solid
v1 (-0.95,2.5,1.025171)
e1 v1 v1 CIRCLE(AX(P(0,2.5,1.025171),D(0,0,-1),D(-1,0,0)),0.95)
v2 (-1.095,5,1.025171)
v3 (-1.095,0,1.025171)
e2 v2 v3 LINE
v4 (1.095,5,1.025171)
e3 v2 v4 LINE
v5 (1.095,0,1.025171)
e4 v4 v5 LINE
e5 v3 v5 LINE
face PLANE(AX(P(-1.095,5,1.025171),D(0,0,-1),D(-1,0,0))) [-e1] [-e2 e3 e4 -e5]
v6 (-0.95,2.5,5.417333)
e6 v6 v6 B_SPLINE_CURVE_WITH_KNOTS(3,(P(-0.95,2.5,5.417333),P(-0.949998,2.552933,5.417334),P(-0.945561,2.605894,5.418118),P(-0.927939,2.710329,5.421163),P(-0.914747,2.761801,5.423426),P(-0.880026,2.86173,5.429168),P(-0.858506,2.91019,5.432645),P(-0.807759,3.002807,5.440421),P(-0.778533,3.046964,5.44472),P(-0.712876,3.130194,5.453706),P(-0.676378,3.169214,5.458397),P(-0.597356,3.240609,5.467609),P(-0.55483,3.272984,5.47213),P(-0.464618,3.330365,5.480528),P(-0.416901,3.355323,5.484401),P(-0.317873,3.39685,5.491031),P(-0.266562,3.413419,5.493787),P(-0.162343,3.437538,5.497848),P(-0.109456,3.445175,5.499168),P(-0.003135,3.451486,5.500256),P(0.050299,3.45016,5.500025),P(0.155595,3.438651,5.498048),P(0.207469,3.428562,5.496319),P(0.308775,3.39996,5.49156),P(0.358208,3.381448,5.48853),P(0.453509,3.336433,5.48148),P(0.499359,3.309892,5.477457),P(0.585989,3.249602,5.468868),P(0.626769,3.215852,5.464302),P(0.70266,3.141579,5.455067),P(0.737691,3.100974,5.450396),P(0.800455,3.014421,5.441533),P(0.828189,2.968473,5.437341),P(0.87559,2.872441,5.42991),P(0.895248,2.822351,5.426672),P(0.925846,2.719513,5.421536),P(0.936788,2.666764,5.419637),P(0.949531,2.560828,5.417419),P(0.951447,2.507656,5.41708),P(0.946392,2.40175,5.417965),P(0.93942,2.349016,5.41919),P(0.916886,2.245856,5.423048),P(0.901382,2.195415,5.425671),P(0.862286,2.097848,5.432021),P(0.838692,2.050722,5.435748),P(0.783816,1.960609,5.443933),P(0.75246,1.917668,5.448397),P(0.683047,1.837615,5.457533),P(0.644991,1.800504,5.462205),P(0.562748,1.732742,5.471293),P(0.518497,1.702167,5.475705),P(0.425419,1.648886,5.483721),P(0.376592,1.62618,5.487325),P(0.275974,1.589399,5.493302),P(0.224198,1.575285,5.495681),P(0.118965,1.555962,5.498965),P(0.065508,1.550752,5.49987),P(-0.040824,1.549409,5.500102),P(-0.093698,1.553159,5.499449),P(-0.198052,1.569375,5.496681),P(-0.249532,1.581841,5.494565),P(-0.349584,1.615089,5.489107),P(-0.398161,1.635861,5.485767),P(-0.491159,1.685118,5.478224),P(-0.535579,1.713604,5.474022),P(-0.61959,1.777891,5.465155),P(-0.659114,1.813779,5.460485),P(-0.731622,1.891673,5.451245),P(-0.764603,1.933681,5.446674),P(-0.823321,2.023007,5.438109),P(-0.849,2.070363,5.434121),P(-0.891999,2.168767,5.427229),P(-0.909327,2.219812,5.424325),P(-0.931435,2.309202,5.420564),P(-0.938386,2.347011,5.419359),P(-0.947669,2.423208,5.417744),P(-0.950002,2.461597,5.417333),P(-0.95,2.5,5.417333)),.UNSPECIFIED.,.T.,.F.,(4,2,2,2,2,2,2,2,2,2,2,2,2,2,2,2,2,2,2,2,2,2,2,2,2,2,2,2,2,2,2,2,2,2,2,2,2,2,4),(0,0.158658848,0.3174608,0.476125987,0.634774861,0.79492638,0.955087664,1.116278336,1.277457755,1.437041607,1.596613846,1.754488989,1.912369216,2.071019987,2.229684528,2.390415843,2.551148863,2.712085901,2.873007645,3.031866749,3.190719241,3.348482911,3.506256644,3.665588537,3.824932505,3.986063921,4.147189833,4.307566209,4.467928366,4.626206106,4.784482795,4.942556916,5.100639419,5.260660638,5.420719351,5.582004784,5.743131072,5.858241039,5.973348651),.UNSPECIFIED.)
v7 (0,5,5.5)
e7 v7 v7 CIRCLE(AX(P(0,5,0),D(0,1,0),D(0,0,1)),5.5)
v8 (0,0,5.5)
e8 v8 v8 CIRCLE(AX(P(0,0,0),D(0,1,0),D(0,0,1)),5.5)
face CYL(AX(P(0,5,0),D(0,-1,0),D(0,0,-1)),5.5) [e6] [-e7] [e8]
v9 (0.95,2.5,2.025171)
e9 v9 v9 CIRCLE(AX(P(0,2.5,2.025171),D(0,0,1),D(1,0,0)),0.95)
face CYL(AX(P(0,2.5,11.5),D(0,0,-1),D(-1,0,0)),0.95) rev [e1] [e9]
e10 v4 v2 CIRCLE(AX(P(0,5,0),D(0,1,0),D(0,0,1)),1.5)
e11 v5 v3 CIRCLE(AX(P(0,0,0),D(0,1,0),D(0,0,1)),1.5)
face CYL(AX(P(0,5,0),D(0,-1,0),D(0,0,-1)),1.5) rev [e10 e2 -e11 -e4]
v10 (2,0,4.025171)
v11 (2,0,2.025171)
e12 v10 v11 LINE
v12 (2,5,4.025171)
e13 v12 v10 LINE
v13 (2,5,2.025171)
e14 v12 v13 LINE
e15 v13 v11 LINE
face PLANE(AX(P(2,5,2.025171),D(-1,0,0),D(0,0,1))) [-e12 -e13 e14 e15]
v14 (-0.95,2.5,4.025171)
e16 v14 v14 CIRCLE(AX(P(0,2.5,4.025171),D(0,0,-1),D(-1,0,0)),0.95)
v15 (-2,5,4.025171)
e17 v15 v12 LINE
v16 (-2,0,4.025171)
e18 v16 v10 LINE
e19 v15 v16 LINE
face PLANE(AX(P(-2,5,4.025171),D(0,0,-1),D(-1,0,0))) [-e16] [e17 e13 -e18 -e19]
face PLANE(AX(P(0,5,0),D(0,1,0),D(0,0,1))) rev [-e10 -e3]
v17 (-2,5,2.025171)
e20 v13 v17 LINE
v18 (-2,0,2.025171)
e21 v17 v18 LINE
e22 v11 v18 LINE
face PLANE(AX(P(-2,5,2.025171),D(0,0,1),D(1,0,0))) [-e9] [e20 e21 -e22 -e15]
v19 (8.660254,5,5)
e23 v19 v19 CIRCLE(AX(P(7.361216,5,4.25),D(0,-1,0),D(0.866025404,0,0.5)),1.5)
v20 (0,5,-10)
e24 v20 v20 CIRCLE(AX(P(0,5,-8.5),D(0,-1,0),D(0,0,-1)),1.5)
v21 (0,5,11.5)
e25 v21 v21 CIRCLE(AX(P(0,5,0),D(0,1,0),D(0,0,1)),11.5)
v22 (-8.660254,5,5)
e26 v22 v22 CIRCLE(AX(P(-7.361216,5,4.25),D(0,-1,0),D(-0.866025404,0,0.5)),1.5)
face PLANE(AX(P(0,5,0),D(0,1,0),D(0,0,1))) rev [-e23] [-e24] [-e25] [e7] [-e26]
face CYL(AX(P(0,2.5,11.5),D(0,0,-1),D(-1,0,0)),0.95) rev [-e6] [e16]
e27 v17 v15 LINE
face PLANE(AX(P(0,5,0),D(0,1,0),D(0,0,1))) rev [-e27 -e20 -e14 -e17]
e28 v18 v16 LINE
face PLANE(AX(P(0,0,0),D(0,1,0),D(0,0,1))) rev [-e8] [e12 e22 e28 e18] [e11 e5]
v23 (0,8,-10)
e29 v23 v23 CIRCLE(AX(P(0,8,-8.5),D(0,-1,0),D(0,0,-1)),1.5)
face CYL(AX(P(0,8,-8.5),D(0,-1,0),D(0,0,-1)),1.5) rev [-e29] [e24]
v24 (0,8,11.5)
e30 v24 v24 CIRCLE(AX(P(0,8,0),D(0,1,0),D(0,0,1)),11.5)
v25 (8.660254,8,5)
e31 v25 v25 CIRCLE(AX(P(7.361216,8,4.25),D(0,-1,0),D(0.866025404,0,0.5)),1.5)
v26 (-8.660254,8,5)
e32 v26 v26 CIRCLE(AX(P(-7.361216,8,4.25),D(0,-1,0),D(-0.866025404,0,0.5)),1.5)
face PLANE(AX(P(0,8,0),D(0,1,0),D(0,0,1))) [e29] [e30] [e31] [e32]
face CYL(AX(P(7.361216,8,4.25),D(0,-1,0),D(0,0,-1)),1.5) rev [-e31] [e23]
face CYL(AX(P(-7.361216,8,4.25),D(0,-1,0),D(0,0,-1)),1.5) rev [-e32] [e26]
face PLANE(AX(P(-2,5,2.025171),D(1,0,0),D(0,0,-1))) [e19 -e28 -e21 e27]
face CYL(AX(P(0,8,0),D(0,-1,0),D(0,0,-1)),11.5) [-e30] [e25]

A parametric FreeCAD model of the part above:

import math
import FreeCAD as App
import Part
import Sketcher
from FreeCAD import Vector

doc = App.newDocument("Part")
body = doc.addObject("PartDesign::Body", "Body")

# Sketch on XZ plane
sketch1 = doc.addObject("Sketcher::SketchObject", "Sketch")
body.addObject(sketch1)
sketch1.AttachmentSupport = (doc.XZ_Plane, [""])
sketch1.MapMode = "FlatFace"
sketch1.addGeometry(Part.Circle(Vector(0, 0, 0), Vector(0, 0, 1), 5.5), False)
sketch1.addGeometry(Part.LineSegment(Vector(2, 4.025171, 0), Vector(-2, 4.025171, 0)), False)
sketch1.addGeometry(Part.LineSegment(Vector(-2, 4.025171, 0), Vector(-2, 2.025171, 0)), False)
sketch1.addGeometry(Part.LineSegment(Vector(-2, 2.025171, 0), Vector(2, 2.025171, 0)), False)
sketch1.addGeometry(Part.LineSegment(Vector(2, 2.025171, 0), Vector(2, 4.025171, 0)), False)
sketch1.addGeometry(Part.LineSegment(Vector(1.095, 1.025171, 0), Vector(-1.095, 1.025171, 0)), False)
sketch1.addGeometry(Part.ArcOfCircle(Part.Circle(Vector(0, 0, 0), Vector(0, 0, 1), 1.5), math.radians(136.886394), math.radians(403.113606)), False)
sketch1.addConstraint(Sketcher.Constraint("Coincident", 1, 2, 2, 1))
sketch1.addConstraint(Sketcher.Constraint("Coincident", 2, 2, 3, 1))
sketch1.addConstraint(Sketcher.Constraint("Coincident", 3, 2, 4, 1))
sketch1.addConstraint(Sketcher.Constraint("Coincident", 4, 2, 1, 1))
sketch1.addConstraint(Sketcher.Constraint("Coincident", 5, 1, 6, 2))
sketch1.addConstraint(Sketcher.Constraint("Coincident", 6, 1, 5, 2))
sketch1.addConstraint(Sketcher.Constraint("Horizontal", 1))
sketch1.addConstraint(Sketcher.Constraint("Vertical", 2))
sketch1.addConstraint(Sketcher.Constraint("Horizontal", 3))
sketch1.addConstraint(Sketcher.Constraint("Vertical", 4))
sketch1.addConstraint(Sketcher.Constraint("Horizontal", 5))
sketch1.addConstraint(Sketcher.Constraint("Coincident", 0, 3, -1, 1))
sketch1.addConstraint(Sketcher.Constraint("Coincident", 6, 3, -1, 1))
sketch1.addConstraint(Sketcher.Constraint("Diameter", 0, 11.0))
sketch1.addConstraint(Sketcher.Constraint("Radius", 6, 1.5))
sketch1.addConstraint(Sketcher.Constraint("DistanceX", 1, 2, 1, 1, 4.0))
sketch1.addConstraint(Sketcher.Constraint("DistanceY", 2, 2, 2, 1, 2.0))
sketch1.addConstraint(Sketcher.Constraint("DistanceX", 1, 2, -1, 1, 2.0))
sketch1.addConstraint(Sketcher.Constraint("DistanceY", 5, 1, 3, 2, 1.0))
sketch1.addConstraint(Sketcher.Constraint("DistanceX", 5, 2, 5, 1, 2.19))
pad1 = doc.addObject("PartDesign::Pad", "Pad")
body.addObject(pad1)
pad1.Profile = sketch1
pad1.Length = 5
pad1.Reversed = True

# Sketch on XZ plane
sketch2 = doc.addObject("Sketcher::SketchObject", "Sketch001")
body.addObject(sketch2)
sketch2.AttachmentSupport = (doc.XZ_Plane, [""])
sketch2.MapMode = "FlatFace"
sketch2.AttachmentOffset = App.Placement(Vector(0, 0, -5), App.Rotation())
sketch2.addGeometry(Part.Circle(Vector(0, 0, 0), Vector(0, 0, 1), 11.5), False)
sketch2.addConstraint(Sketcher.Constraint("Coincident", 0, 3, -1, 1))
sketch2.addConstraint(Sketcher.Constraint("Diameter", 0, 23.0))
pad2 = doc.addObject("PartDesign::Pad", "Pad001")
body.addObject(pad2)
pad2.Profile = sketch2
pad2.Length = 3
pad2.Reversed = True

# Sketch on XZ plane
sketch3 = doc.addObject("Sketcher::SketchObject", "Sketch002")
body.addObject(sketch3)
sketch3.AttachmentSupport = (doc.XZ_Plane, [""])
sketch3.MapMode = "FlatFace"
sketch3.AttachmentOffset = App.Placement(Vector(0, 0, -5), App.Rotation())
sketch3.addGeometry(Part.Circle(Vector(0, -8.5, 0), Vector(0, 0, 1), 1.5), False)
sketch3.addConstraint(Sketcher.Constraint("PointOnObject", 0, 3, -2))
sketch3.addConstraint(Sketcher.Constraint("Diameter", 0, 3.0))
sketch3.addConstraint(Sketcher.Constraint("DistanceY", 0, 3, -1, 1, 8.5))
pocket1 = doc.addObject("PartDesign::Pocket", "Pocket")
body.addObject(pocket1)
pocket1.Profile = sketch3
pocket1.Length = 3
doc.recompute()

polarpattern = doc.addObject("PartDesign::PolarPattern", "PolarPattern")
body.addObject(polarpattern)
polarpattern.Originals = [pocket1]
polarpattern.Axis = (doc.Y_Axis, [""])
polarpattern.Angle = 360
polarpattern.Occurrences = 3
body.Tip = polarpattern

# Sketch on XY plane
sketch4 = doc.addObject("Sketcher::SketchObject", "Sketch003")
body.addObject(sketch4)
sketch4.AttachmentSupport = (doc.XY_Plane, [""])
sketch4.MapMode = "FlatFace"
sketch4.AttachmentOffset = App.Placement(Vector(0, 0, 4.025171), App.Rotation())
sketch4.addGeometry(Part.Circle(Vector(0, 2.5, 0), Vector(0, 0, 1), 0.95), False)
sketch4.addConstraint(Sketcher.Constraint("PointOnObject", 0, 3, -2))
sketch4.addConstraint(Sketcher.Constraint("Diameter", 0, 1.9))
sketch4.addConstraint(Sketcher.Constraint("DistanceY", -1, 1, 0, 3, 2.5))
pocket2 = doc.addObject("PartDesign::Pocket", "Pocket001")
body.addObject(pocket2)
pocket2.Profile = sketch4
pocket2.Type = "TwoLengths"
pocket2.Length = 3
pocket2.Length2 = 8.474829

doc.recompute()
